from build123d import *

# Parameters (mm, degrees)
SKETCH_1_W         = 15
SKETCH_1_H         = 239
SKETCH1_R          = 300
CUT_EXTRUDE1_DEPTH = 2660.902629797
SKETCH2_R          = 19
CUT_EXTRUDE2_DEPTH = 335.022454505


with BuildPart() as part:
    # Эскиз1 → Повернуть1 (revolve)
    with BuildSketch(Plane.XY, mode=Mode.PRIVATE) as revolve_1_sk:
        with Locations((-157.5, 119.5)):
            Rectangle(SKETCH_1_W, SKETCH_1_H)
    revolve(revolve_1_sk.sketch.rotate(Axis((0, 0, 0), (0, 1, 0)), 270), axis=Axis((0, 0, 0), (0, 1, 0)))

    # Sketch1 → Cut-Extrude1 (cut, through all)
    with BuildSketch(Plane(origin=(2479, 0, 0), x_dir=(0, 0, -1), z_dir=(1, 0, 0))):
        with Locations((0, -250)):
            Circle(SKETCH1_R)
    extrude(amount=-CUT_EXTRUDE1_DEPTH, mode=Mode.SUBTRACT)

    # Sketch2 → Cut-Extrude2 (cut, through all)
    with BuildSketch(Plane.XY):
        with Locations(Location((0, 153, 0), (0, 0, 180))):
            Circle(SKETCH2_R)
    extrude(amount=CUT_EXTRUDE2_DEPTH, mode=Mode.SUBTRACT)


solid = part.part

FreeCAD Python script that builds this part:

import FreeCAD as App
import Part
import Sketcher


def add_polygon(sketch, points):
    """Adds a closed chain of lines whose ends are joined by coincident constraints."""
    first, n = sketch.GeometryCount, len(points)
    for a, b in zip(points, points[1:] + points[:1]):
        sketch.addGeometry(Part.LineSegment(App.Vector(*a, 0), App.Vector(*b, 0)), False)
    for i in range(n):
        sketch.addConstraint(Sketcher.Constraint("Coincident", first + i, 2, first + (i + 1) % n, 1))

doc = App.newDocument("Part")
body = doc.addObject("PartDesign::Body", "Body")

# Sketch on XY plane
sketch1 = body.newObject("Sketcher::SketchObject", "Sketch")
sketch1.AttachmentSupport = (doc.getObject("XY_Plane"), [""])
sketch1.MapMode = "FlatFace"
add_polygon(sketch1, [(-165, 239), (-165, 0), (-150, 0), (-150, 239)])  # lines 0-3
sketch1.addConstraint(Sketcher.Constraint("Vertical", 0))
sketch1.addConstraint(Sketcher.Constraint("Horizontal", 1))
sketch1.addConstraint(Sketcher.Constraint("Vertical", 2))
sketch1.addConstraint(Sketcher.Constraint("Horizontal", 3))
sketch1.addConstraint(Sketcher.Constraint("PointOnObject", 0, 2, -1))
sketch1.addConstraint(Sketcher.Constraint("DistanceX", 1, 1, 1, 2, 15.0))
sketch1.addConstraint(Sketcher.Constraint("DistanceY", 0, 2, 0, 1, 239.0))
sketch1.addConstraint(Sketcher.Constraint("DistanceX", 0, 2, -1, 1, 165.0))
revolution = body.newObject("PartDesign::Revolution", "Revolution")
revolution.Profile = sketch1
revolution.ReferenceAxis = (sketch1, ["V_Axis"])
revolution.Angle = 360

# Sketch on YZ plane
sketch2 = body.newObject("Sketcher::SketchObject", "Sketch001")
sketch2.AttachmentSupport = (doc.getObject("YZ_Plane"), [""])
sketch2.MapMode = "FlatFace"
sketch2.AttachmentOffset = App.Placement(App.Vector(0, 0, 2479), App.Rotation())
sketch2.addGeometry(Part.Circle(App.Vector(-250, 0, 0), App.Vector(0, 0, 1), 300), False)
sketch2.addConstraint(Sketcher.Constraint("PointOnObject", 0, 3, -1))
sketch2.addConstraint(Sketcher.Constraint("Diameter", 0, 600.0))
sketch2.addConstraint(Sketcher.Constraint("DistanceX", 0, 3, -1, 1, 250.0))
pocket1 = body.newObject("PartDesign::Pocket", "Pocket")
pocket1.Profile = sketch2
pocket1.Type = "ThroughAll"

# Sketch on XY plane
sketch3 = body.newObject("Sketcher::SketchObject", "Sketch002")
sketch3.AttachmentSupport = (doc.getObject("XY_Plane"), [""])
sketch3.MapMode = "FlatFace"
sketch3.addGeometry(Part.Circle(App.Vector(0, 153, 0), App.Vector(0, 0, 1), 19), False)
sketch3.addConstraint(Sketcher.Constraint("PointOnObject", 0, 3, -2))
sketch3.addConstraint(Sketcher.Constraint("Diameter", 0, 38.0))
sketch3.addConstraint(Sketcher.Constraint("DistanceY", -1, 1, 0, 3, 153.0))
pocket2 = body.newObject("PartDesign::Pocket", "Pocket001")
pocket2.Profile = sketch3
pocket2.Type = "ThroughAll"
pocket2.Reversed = True

doc.recompute()
